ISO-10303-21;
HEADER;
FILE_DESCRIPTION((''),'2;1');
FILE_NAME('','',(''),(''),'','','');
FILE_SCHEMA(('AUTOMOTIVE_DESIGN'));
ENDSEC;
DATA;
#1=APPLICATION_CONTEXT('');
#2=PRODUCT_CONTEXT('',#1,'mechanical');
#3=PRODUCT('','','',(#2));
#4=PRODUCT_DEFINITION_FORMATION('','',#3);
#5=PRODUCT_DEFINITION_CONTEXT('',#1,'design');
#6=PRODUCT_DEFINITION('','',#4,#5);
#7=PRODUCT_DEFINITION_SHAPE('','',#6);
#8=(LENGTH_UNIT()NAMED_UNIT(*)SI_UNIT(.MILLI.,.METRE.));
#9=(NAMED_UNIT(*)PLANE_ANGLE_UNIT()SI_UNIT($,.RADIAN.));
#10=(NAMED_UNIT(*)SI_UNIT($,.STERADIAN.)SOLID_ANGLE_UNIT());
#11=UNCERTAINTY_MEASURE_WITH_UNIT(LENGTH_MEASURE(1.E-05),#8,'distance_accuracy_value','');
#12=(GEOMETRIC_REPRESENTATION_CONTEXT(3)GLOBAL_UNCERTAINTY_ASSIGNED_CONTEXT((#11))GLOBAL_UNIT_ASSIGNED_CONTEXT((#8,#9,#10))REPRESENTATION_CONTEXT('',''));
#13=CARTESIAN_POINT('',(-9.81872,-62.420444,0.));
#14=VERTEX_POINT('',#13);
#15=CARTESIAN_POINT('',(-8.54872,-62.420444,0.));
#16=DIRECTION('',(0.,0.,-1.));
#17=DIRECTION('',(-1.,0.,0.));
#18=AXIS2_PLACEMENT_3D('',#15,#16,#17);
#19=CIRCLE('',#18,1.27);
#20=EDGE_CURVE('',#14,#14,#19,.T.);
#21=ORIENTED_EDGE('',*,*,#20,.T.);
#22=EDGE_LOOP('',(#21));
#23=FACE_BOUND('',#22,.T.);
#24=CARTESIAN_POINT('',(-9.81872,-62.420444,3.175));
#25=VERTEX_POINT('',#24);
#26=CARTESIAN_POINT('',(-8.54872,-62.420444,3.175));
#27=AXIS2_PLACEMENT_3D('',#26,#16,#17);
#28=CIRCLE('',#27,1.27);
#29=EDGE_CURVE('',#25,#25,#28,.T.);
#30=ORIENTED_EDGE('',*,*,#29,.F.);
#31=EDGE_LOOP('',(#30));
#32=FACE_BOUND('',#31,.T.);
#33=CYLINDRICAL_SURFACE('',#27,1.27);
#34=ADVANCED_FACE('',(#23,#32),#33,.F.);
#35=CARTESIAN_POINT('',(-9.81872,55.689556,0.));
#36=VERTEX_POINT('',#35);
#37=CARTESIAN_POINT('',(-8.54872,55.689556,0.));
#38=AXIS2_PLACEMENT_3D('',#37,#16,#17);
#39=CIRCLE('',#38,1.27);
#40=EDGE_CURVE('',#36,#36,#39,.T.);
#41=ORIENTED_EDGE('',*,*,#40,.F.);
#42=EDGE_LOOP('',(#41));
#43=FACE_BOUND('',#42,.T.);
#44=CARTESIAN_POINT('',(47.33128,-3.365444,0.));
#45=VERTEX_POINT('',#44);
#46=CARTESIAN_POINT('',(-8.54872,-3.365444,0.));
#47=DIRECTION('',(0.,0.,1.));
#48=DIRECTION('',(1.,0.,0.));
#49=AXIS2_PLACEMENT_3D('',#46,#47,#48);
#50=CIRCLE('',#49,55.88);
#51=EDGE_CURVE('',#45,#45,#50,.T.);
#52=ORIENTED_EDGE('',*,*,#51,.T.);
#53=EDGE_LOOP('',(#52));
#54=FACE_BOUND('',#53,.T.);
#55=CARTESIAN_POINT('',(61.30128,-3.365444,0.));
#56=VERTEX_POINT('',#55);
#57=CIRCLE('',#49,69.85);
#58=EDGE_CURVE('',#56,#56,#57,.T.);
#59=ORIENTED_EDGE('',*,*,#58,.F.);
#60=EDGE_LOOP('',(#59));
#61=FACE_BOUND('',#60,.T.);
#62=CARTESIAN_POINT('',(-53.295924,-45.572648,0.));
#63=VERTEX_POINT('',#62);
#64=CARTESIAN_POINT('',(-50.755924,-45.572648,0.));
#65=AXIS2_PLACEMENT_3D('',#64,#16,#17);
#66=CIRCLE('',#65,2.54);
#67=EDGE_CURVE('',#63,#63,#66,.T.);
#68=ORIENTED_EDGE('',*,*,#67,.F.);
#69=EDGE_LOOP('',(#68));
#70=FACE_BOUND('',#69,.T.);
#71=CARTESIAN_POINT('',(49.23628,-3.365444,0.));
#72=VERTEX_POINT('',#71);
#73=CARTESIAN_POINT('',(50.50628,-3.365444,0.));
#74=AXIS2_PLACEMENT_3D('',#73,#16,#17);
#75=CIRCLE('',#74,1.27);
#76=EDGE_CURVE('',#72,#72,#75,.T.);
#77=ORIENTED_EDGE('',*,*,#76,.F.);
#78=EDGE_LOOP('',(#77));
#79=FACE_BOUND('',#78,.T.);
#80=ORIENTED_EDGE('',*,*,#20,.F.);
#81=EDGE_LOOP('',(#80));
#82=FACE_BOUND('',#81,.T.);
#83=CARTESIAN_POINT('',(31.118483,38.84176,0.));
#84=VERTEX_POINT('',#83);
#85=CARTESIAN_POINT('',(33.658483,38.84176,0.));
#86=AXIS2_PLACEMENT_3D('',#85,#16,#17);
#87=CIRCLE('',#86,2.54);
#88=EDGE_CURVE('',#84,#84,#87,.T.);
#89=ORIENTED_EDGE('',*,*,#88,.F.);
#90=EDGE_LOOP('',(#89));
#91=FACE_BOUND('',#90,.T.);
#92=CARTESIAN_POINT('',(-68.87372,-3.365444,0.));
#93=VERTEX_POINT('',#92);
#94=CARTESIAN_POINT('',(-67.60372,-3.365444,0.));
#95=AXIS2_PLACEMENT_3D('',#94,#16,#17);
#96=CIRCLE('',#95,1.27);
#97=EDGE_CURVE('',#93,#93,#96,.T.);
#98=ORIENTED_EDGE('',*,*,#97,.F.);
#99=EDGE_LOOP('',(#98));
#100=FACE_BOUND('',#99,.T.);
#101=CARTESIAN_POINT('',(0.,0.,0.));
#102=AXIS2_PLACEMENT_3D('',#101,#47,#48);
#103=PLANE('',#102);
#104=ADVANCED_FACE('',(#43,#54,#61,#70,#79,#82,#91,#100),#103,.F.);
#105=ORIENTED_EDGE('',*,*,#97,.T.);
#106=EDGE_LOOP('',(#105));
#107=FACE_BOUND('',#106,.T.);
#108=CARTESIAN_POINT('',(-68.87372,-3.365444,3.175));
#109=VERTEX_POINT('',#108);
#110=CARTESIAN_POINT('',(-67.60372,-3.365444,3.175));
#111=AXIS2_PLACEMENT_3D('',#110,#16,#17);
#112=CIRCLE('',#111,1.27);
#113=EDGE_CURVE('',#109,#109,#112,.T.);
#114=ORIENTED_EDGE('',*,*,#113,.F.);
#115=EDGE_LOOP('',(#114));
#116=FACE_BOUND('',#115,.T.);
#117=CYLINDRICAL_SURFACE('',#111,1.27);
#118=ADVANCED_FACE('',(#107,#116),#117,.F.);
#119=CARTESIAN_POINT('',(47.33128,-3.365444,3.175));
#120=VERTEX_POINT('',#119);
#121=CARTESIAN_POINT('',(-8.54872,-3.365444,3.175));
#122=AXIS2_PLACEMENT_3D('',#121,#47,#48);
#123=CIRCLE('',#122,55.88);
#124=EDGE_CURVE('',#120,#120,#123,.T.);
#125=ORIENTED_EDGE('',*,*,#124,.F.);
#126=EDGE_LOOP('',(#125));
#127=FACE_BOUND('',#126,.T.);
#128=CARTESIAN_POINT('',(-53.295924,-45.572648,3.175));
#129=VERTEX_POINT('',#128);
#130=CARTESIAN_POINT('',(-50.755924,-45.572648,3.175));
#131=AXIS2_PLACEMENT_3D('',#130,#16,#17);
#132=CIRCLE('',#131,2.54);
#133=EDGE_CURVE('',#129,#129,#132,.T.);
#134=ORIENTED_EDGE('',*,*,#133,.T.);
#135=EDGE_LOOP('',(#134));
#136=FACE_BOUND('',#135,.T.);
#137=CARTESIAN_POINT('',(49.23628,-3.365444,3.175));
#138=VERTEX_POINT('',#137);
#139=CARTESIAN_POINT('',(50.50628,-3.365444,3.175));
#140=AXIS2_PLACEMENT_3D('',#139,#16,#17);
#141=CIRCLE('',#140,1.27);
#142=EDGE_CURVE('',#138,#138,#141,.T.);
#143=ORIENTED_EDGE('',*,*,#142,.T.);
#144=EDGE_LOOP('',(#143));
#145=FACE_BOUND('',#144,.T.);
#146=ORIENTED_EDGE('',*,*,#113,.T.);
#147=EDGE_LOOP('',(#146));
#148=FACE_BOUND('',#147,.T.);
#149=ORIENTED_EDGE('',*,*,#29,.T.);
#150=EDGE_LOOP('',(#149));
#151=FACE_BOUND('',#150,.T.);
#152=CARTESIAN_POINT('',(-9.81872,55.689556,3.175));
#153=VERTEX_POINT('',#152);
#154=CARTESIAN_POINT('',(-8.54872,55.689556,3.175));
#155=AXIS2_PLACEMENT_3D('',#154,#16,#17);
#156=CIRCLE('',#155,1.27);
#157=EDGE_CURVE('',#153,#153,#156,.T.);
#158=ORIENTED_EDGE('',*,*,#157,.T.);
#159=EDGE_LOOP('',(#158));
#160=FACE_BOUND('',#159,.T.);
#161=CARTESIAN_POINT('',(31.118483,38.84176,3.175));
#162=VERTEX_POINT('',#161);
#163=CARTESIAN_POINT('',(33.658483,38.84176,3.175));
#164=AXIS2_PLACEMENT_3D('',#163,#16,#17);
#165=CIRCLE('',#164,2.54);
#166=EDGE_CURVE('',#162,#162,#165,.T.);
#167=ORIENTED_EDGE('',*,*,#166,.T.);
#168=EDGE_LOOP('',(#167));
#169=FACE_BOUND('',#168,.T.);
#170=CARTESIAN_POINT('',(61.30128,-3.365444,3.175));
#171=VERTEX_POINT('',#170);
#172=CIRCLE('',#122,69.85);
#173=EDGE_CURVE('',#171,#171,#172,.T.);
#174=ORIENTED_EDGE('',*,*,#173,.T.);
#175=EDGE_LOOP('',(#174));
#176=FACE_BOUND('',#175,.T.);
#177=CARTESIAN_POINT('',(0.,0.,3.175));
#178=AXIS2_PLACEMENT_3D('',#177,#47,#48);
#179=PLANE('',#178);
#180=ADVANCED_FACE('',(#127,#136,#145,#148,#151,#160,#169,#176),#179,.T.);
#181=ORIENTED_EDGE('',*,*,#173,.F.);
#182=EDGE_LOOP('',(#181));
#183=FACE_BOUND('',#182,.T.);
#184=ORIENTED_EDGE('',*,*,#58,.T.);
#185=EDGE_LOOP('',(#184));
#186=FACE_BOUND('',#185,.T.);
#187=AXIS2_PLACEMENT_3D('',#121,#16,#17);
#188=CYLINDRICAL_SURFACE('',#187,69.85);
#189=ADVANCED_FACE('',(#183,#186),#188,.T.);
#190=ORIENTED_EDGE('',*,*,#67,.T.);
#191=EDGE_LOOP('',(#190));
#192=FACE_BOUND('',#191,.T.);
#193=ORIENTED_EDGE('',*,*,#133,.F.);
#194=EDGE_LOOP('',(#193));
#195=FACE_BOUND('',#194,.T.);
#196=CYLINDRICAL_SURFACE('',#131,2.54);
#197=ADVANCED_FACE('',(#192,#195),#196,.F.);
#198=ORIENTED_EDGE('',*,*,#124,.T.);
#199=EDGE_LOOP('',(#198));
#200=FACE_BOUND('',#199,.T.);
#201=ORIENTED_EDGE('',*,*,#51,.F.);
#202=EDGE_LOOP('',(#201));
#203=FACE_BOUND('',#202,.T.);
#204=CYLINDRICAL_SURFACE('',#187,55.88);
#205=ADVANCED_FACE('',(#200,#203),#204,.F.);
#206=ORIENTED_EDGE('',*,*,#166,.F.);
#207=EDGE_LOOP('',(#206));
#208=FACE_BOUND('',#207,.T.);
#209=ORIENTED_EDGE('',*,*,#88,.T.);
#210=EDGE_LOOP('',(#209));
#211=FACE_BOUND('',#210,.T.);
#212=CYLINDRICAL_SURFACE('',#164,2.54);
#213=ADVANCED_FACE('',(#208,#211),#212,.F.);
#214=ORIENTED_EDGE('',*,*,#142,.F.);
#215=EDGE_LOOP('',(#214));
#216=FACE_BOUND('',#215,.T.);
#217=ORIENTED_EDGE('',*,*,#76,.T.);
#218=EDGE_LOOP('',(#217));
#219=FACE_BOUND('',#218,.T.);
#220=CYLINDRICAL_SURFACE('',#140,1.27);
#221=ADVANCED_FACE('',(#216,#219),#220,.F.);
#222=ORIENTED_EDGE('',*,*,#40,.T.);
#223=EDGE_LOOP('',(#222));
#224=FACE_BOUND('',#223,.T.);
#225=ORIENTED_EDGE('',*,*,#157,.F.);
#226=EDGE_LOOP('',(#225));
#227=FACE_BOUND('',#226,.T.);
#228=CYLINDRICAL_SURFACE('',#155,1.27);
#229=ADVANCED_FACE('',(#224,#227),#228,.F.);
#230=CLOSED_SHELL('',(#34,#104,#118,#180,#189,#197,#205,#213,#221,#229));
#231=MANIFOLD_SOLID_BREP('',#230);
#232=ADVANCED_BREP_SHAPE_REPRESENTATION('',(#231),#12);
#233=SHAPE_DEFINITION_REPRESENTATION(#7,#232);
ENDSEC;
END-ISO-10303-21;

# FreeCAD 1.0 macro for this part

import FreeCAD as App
import Part
import Sketcher
Q = App.Units.Quantity

doc = App.newDocument("Part")
body = doc.addObject("PartDesign::Body", "Body")

sketch1 = doc.addObject("Sketcher::SketchObject", "Sketch")
body.addObject(sketch1)
sketch1.AttachmentSupport = (doc.XY_Plane, [""])
sketch1.MapMode = "FlatFace"
sketch1.addGeometry([
    Part.Circle(App.Vector(-9, -3, 0), App.Vector(0, 0, 1), 70),
    Part.Circle(App.Vector(-9, -3, 0), App.Vector(0, 0, 1), 56),
], False)
sketch1.addConstraint([
    Sketcher.Constraint("Coincident", 1, 3, 0, 3),
    Sketcher.Constraint("Diameter", 0, Q("5.5 in")),
    Sketcher.Constraint("Diameter", 1, Q("4.4 in")),
    Sketcher.Constraint("DistanceX", 0, 3, -1, 1, 8.54872),
    Sketcher.Constraint("DistanceY", 0, 3, -1, 1, 3.365444),
])
pad1 = doc.addObject("PartDesign::Pad", "Pad")
body.addObject(pad1)
pad1.Profile = sketch1
pad1.Length = Q("0.125 in")

sketch2 = doc.addObject("Sketcher::SketchObject", "Sketch001")
body.addObject(sketch2)
sketch2.AttachmentSupport = (doc.XY_Plane, [""])
sketch2.MapMode = "FlatFace"
sketch2.addGeometry([
    Part.Circle(App.Vector(-8.5, 55.7, 0), App.Vector(0, 0, 1), 1.3),
    Part.Circle(App.Vector(-8.5, -62.4, 0), App.Vector(0, 0, 1), 1.3),
    Part.Circle(App.Vector(50.5, -3.4, 0), App.Vector(0, 0, 1), 1.3),
    Part.Circle(App.Vector(-67.6, -3.4, 0), App.Vector(0, 0, 1), 1.3),
    Part.Circle(App.Vector(33.7, 38.8, 0), App.Vector(0, 0, 1), 2.5),
    Part.Circle(App.Vector(-50.8, -45.6, 0), App.Vector(0, 0, 1), 2.5),
], False)
sketch2.addConstraint([
    Sketcher.Constraint("Equal", 0, 1),
    Sketcher.Constraint("Equal", 1, 2),
    Sketcher.Constraint("Equal", 2, 3),
    Sketcher.Constraint("Equal", 4, 5),
    Sketcher.Constraint("Horizontal", 2, 3, 3, 3),
    Sketcher.Constraint("Vertical", 0, 3, 1, 3),
    Sketcher.Constraint("Diameter", 0, Q("0.1 in")),
    Sketcher.Constraint("Diameter", 4, Q("0.2 in")),
    Sketcher.Constraint("DistanceY", 1, 3, 0, 3, Q("4.65 in")),
    Sketcher.Constraint("DistanceX", 3, 3, 2, 3, Q("4.65 in")),
    Sketcher.Constraint("DistanceX", 0, 3, 2, 3, Q("2.325 in")),
    Sketcher.Constraint("DistanceY", 2, 3, 0, 3, Q("2.325 in")),
    Sketcher.Constraint("DistanceX", 0, 3, -1, 1, 8.54872),
    Sketcher.Constraint("DistanceY", -1, 1, 4, 3, 38.84176),
    Sketcher.Constraint("DistanceY", -1, 1, 0, 3, 55.689556),
    Sketcher.Constraint("DistanceX", -1, 1, 4, 3, 33.658483),
    Sketcher.Constraint("DistanceX", 5, 3, -1, 1, 50.755924),
    Sketcher.Constraint("DistanceY", 5, 3, -1, 1, 45.572648),
])
pocket1 = doc.addObject("PartDesign::Pocket", "Pocket")
body.addObject(pocket1)
pocket1.Profile = sketch2
pocket1.Type = "ThroughAll"
pocket1.Reversed = True

doc.recompute()
